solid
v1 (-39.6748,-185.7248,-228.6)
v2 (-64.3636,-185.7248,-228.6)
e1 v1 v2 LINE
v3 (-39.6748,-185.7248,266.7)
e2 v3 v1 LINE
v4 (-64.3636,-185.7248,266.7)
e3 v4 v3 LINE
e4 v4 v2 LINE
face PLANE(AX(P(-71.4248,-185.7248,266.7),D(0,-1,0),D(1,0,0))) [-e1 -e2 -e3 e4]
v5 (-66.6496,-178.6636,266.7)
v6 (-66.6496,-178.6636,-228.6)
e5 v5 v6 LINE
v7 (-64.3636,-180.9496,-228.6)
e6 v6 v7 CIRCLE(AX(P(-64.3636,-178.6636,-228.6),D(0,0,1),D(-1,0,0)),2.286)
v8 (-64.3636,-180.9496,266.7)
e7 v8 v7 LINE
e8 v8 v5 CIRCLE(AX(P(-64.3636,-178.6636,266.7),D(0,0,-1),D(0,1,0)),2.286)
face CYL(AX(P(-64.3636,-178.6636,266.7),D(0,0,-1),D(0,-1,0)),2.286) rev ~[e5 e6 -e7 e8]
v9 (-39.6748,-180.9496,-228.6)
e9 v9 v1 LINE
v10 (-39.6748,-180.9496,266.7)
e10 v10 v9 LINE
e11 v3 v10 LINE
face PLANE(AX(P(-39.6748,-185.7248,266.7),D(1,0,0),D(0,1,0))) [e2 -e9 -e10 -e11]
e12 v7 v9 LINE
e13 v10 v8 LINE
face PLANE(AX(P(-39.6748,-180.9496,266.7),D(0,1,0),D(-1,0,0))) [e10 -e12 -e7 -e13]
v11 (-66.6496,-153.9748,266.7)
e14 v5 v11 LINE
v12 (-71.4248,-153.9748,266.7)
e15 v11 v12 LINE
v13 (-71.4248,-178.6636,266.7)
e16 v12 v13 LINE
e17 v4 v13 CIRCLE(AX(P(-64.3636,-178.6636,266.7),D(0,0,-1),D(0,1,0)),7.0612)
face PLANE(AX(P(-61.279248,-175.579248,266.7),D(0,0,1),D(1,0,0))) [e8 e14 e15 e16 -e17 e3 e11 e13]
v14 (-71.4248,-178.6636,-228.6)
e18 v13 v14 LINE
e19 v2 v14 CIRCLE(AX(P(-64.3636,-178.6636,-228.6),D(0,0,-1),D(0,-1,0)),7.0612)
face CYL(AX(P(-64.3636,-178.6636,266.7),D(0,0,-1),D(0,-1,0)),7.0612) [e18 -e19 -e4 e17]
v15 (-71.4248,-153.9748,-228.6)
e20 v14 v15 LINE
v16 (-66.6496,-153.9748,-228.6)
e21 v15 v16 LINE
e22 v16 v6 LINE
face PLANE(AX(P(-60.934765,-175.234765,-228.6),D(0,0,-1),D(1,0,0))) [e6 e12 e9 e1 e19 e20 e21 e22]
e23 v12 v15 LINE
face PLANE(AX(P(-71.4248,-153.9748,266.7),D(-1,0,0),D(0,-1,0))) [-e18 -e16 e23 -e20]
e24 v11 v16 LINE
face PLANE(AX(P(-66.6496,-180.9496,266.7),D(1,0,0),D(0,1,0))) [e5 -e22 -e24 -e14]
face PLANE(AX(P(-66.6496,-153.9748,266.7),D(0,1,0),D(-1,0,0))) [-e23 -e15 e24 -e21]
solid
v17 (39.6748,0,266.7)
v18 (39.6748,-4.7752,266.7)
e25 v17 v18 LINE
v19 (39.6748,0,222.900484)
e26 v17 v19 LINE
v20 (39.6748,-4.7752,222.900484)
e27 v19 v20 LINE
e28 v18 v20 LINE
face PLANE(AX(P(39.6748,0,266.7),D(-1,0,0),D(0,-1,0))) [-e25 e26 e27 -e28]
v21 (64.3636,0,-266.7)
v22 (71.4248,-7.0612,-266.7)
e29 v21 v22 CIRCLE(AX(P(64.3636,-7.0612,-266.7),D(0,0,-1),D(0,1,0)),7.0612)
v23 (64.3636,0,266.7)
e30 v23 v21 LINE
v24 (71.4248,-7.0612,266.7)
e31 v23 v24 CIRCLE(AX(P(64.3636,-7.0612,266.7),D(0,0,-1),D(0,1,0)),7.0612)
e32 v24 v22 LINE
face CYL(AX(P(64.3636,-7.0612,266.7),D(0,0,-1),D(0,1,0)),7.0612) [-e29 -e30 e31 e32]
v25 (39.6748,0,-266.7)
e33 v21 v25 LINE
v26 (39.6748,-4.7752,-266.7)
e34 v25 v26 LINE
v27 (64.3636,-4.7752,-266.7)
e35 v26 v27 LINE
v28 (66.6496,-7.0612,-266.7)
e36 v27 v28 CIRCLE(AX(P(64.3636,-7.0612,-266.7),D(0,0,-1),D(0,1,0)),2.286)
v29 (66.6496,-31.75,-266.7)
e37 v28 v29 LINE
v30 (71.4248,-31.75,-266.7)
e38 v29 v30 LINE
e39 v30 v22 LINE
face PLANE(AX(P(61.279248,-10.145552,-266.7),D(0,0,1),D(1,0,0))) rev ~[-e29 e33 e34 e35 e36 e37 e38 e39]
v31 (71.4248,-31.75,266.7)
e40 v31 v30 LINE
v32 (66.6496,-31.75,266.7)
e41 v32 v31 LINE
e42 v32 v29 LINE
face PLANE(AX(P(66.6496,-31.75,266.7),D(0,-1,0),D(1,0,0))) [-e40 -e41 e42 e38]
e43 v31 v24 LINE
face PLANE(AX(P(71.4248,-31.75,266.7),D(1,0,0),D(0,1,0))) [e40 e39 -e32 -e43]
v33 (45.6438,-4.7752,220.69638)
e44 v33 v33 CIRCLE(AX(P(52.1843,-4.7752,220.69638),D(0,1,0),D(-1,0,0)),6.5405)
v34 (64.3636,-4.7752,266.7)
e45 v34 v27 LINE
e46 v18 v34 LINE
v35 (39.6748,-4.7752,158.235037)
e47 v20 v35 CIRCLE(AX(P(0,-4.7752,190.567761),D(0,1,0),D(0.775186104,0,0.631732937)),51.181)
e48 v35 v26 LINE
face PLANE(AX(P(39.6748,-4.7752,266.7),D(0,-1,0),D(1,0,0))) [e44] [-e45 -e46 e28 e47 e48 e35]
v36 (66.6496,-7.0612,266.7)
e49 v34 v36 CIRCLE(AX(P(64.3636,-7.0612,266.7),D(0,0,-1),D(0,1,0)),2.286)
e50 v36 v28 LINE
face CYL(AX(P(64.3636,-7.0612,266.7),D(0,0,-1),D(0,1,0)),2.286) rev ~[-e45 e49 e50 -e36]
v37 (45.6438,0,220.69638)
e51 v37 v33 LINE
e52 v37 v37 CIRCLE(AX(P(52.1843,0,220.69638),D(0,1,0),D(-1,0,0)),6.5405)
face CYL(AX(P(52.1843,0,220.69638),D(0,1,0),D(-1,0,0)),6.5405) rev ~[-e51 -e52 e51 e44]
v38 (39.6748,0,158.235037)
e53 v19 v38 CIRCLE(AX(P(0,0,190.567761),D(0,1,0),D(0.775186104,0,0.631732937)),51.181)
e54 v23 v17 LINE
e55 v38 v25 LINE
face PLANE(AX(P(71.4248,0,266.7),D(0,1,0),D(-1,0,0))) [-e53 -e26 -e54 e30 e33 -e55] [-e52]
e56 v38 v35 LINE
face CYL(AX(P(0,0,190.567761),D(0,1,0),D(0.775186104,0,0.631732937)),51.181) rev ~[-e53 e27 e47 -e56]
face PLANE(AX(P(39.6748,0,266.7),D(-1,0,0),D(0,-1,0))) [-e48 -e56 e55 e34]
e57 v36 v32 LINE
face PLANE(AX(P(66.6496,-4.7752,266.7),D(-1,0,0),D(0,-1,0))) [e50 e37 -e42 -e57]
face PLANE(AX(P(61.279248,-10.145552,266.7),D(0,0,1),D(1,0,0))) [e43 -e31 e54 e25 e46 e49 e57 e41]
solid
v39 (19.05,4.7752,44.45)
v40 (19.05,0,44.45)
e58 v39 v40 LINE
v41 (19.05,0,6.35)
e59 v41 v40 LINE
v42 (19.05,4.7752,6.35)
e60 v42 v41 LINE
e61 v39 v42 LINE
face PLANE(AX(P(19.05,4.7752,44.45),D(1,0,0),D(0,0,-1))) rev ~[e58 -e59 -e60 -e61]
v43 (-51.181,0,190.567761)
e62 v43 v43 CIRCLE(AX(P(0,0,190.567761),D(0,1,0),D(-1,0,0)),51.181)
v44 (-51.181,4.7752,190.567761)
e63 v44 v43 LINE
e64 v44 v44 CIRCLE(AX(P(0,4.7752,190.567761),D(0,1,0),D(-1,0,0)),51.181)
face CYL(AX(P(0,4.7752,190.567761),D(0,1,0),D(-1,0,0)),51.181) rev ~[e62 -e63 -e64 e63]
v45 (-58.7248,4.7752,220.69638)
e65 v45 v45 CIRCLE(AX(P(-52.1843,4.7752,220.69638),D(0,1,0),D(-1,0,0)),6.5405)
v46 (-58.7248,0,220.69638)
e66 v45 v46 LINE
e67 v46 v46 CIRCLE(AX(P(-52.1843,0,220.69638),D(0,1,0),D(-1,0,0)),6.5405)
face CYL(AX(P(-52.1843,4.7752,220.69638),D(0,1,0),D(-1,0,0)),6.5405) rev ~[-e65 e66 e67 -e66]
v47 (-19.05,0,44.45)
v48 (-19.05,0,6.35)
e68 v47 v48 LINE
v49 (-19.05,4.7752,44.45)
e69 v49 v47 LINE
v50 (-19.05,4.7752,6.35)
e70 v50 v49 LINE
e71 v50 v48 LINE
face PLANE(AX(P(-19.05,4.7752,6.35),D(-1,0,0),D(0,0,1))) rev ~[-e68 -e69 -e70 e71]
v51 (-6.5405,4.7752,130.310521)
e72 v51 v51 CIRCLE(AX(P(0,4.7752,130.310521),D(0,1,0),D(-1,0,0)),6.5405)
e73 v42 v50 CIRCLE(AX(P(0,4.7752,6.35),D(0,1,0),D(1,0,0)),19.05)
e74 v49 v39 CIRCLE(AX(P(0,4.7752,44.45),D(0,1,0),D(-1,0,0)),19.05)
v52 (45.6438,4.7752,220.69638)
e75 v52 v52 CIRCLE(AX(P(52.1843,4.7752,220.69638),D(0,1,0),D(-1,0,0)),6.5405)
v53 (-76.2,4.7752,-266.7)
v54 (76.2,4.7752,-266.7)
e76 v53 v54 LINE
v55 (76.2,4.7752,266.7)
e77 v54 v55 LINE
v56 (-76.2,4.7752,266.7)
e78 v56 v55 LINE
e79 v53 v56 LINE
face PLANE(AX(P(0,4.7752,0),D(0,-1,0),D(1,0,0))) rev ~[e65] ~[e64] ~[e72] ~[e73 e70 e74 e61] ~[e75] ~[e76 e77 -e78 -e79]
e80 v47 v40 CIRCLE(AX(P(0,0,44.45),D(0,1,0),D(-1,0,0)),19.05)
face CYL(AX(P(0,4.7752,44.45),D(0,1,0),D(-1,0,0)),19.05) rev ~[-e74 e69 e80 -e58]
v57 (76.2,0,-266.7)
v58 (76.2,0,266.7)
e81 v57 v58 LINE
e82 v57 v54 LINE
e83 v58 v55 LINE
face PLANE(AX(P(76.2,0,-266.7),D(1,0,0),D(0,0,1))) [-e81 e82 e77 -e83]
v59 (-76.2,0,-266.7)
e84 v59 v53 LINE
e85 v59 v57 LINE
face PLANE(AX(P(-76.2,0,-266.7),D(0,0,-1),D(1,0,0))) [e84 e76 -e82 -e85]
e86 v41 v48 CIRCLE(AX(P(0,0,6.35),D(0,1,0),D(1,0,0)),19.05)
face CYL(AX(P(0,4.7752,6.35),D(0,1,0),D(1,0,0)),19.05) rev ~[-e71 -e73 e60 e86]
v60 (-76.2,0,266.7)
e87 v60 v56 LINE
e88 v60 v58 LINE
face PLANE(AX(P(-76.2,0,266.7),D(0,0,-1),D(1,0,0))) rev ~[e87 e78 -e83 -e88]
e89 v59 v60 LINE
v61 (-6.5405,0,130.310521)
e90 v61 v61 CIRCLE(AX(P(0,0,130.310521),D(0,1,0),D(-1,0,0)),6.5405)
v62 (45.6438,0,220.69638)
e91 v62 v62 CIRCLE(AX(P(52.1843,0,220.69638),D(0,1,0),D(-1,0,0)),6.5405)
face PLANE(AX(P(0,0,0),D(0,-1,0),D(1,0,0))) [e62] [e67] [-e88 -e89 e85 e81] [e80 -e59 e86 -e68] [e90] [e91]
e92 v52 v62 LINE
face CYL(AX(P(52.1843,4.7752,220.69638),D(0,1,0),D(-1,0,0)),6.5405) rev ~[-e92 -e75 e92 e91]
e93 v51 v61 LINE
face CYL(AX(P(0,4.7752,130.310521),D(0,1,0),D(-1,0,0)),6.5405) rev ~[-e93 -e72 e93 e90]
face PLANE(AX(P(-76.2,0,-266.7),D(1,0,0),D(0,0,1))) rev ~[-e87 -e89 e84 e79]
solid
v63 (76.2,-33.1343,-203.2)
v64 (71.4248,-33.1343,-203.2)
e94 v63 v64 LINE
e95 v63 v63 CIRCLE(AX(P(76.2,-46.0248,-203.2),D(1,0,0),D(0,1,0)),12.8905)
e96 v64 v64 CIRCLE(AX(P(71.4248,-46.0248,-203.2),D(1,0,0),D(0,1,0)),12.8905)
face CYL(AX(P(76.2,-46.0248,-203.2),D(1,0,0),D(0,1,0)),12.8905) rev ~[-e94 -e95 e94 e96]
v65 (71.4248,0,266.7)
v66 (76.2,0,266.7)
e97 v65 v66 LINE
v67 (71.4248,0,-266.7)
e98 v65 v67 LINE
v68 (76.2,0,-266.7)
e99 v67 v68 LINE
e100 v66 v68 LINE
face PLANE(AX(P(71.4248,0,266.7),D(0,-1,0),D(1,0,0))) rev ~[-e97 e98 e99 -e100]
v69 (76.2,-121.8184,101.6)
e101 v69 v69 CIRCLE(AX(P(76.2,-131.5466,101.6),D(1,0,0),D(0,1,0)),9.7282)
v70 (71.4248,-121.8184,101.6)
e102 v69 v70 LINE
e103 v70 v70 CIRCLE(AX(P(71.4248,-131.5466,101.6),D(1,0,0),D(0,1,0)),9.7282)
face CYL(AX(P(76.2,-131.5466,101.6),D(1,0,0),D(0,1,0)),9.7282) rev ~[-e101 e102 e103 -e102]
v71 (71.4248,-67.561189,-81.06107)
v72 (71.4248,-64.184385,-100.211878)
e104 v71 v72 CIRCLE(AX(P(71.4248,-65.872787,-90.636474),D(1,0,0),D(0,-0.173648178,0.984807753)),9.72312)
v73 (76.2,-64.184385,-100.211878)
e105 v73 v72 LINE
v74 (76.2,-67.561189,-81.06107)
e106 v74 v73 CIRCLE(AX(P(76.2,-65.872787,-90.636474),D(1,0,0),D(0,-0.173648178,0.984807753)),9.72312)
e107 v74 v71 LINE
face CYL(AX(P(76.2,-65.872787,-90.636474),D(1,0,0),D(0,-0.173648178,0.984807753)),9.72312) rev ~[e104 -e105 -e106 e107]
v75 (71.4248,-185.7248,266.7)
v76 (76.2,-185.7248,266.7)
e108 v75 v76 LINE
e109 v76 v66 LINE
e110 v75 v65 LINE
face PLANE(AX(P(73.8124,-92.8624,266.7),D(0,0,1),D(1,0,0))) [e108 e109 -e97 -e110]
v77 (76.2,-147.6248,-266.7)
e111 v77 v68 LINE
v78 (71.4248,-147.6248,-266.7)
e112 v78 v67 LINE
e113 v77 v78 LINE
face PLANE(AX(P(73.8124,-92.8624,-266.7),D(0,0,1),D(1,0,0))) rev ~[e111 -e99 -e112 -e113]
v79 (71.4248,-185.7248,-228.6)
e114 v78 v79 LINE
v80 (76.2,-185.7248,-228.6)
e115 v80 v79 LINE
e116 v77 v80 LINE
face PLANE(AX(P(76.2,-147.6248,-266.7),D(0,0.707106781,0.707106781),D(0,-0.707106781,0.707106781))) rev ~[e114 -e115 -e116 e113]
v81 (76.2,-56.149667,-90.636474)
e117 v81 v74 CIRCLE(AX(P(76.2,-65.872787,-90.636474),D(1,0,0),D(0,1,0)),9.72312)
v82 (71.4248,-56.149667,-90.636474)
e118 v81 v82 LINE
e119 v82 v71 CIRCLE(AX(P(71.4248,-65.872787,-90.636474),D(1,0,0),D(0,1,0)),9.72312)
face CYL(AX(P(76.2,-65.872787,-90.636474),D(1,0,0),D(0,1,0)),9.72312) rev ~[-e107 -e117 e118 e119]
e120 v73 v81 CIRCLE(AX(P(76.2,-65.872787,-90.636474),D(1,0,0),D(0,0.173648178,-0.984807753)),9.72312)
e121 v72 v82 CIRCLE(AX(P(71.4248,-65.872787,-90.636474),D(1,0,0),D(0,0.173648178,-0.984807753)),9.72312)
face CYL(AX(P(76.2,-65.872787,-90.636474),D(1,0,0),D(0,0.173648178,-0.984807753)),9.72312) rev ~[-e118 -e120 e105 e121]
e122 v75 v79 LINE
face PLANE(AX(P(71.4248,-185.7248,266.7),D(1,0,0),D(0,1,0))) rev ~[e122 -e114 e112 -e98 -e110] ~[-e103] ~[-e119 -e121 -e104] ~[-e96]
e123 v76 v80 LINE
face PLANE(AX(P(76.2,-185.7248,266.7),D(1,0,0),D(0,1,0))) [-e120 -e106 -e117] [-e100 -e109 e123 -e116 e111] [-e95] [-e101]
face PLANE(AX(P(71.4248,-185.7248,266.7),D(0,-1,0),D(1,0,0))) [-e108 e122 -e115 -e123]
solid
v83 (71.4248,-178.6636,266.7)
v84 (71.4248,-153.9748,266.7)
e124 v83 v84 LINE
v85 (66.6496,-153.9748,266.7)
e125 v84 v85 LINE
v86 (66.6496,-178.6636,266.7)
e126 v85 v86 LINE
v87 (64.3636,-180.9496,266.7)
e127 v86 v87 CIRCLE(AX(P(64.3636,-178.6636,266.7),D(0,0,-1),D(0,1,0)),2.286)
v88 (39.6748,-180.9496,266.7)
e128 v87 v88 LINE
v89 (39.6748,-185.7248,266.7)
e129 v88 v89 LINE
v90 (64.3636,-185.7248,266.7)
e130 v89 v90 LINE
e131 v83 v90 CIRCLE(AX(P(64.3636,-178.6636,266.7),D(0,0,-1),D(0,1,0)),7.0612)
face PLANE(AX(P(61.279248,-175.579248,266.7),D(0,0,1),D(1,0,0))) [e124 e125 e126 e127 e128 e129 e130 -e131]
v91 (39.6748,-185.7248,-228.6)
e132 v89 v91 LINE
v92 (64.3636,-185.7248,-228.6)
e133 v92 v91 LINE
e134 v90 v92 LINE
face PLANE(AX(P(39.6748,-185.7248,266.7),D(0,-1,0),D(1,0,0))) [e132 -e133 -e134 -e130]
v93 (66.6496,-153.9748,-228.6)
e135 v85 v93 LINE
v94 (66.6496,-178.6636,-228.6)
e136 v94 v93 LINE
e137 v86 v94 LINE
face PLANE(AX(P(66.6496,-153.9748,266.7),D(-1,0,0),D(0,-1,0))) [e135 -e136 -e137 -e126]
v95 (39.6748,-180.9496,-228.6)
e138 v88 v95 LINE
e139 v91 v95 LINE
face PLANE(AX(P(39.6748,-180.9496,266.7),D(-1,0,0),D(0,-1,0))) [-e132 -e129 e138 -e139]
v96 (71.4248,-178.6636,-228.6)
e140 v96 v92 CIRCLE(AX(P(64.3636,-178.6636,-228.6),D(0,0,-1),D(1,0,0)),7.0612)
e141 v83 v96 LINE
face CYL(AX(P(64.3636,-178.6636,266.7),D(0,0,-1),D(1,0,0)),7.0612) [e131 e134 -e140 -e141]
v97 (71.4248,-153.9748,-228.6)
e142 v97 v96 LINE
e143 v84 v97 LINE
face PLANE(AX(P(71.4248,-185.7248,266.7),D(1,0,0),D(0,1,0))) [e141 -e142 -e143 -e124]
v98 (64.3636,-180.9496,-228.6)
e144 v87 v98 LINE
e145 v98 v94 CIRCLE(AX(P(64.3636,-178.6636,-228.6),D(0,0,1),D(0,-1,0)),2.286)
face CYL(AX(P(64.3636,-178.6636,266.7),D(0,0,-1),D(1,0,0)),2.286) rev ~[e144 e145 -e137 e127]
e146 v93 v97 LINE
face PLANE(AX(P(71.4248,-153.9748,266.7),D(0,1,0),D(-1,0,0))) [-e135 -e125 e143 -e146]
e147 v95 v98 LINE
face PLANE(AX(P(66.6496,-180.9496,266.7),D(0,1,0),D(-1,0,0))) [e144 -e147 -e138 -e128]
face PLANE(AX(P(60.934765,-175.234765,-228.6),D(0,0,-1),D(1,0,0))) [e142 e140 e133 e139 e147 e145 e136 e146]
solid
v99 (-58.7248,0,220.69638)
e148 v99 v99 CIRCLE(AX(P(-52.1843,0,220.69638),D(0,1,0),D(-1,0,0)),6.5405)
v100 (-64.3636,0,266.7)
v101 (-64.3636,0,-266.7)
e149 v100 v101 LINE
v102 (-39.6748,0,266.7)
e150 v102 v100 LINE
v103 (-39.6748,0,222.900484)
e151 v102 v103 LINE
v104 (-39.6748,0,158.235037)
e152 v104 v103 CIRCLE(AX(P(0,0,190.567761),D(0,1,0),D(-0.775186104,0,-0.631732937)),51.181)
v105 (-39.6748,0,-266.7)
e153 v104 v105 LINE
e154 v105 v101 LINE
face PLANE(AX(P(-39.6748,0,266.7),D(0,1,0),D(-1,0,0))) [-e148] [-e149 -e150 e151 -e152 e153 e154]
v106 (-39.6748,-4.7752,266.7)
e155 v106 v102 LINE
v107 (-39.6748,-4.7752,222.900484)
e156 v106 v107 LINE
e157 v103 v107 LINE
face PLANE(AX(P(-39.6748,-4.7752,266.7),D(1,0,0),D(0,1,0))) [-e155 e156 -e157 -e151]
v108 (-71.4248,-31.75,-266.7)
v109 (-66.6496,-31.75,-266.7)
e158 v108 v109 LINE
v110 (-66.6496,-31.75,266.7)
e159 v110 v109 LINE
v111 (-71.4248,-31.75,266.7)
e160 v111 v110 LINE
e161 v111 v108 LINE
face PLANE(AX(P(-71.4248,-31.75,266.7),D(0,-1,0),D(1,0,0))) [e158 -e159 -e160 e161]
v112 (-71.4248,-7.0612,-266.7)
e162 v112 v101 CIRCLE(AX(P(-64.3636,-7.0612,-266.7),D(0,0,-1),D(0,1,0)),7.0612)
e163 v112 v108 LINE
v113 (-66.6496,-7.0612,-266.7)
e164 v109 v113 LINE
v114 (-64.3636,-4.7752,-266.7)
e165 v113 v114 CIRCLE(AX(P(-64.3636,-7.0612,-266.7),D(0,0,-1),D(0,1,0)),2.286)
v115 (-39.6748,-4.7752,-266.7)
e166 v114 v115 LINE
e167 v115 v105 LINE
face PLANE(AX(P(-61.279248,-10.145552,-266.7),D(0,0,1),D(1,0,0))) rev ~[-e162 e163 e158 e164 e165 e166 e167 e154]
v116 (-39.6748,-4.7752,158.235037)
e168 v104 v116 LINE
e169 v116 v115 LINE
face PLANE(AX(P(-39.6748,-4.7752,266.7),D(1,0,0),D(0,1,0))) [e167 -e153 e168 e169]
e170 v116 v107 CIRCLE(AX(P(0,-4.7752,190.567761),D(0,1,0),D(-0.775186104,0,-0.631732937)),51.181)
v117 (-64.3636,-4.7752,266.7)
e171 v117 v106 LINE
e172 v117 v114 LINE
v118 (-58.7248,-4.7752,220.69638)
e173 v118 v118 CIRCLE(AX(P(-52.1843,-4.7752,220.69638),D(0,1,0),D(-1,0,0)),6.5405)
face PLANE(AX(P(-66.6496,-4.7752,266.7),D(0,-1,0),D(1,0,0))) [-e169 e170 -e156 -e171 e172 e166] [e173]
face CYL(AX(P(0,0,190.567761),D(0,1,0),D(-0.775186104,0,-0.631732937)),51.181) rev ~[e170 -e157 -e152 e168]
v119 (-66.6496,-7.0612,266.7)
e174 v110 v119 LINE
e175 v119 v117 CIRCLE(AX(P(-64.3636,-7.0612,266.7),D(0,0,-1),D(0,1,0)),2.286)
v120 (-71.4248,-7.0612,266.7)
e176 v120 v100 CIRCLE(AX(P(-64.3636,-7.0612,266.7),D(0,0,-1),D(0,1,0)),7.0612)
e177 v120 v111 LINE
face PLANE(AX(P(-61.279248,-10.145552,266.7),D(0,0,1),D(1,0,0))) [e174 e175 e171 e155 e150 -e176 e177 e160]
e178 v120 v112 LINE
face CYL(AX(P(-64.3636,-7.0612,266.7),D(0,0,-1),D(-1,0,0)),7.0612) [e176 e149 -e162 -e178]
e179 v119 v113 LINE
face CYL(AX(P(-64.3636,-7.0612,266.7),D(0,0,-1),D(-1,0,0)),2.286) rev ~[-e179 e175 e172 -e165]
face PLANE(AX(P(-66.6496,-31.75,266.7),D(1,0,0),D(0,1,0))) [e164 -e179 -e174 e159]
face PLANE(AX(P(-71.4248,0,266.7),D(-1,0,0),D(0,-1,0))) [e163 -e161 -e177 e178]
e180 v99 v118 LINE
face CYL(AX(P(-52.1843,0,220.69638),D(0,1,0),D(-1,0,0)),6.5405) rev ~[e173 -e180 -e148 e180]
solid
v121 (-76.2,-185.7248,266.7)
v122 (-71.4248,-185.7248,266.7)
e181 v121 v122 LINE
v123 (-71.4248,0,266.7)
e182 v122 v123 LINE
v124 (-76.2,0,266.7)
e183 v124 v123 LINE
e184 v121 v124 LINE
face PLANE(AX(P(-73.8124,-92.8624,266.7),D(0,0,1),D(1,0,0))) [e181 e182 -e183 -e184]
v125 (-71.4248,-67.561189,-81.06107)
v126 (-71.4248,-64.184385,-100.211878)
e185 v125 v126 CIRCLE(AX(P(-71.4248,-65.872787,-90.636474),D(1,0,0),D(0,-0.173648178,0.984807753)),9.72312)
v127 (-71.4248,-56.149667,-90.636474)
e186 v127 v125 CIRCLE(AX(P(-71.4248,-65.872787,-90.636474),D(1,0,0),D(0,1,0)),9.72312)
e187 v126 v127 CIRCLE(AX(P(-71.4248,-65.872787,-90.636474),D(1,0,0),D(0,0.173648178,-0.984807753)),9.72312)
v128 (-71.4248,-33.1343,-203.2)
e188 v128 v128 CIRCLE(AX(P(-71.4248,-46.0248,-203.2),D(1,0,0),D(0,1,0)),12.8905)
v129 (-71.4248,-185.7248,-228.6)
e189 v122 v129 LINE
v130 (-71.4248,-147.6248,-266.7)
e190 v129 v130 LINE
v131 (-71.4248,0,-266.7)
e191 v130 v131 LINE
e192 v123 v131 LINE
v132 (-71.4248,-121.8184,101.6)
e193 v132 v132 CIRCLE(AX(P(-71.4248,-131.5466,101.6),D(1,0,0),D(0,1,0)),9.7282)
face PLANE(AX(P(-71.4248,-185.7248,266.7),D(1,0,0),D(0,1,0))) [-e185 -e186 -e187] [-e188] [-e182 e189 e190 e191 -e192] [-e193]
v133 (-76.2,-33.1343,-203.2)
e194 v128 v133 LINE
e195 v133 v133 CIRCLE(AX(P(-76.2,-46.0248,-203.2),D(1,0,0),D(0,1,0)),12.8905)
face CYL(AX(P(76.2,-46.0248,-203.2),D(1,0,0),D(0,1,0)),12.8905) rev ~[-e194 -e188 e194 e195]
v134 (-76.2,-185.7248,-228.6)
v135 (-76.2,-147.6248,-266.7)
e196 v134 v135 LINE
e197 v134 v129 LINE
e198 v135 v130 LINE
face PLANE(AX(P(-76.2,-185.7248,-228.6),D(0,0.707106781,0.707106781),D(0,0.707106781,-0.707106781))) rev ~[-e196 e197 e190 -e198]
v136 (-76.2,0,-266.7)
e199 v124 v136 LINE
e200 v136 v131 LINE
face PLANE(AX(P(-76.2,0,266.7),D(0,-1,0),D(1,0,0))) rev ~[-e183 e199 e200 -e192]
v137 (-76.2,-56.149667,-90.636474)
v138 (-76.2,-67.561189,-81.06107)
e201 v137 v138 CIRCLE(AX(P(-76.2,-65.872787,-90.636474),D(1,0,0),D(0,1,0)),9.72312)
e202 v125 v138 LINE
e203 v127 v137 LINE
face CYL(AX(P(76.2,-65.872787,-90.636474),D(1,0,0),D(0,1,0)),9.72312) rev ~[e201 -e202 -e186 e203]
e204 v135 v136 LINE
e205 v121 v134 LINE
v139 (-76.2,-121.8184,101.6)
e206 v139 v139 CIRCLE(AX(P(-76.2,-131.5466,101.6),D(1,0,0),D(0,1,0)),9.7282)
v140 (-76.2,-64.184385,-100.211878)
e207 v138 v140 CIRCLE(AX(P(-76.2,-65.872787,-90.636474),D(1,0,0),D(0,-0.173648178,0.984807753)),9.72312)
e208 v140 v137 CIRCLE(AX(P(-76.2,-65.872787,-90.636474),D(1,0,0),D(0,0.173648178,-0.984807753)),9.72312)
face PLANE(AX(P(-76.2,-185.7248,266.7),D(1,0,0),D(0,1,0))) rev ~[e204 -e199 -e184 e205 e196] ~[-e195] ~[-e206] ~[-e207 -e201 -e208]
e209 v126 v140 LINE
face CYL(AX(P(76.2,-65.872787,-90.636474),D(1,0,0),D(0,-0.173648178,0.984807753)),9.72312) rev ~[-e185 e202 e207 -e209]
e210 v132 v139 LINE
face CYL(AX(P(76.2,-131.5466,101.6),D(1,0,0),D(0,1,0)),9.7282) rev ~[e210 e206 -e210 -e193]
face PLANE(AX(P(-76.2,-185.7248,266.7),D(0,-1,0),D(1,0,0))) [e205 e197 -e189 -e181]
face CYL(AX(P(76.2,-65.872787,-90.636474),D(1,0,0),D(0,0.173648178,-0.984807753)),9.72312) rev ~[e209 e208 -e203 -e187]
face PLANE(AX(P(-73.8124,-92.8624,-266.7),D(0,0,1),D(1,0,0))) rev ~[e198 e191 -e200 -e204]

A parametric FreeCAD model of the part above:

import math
import FreeCAD as App
import Part
import Sketcher
Q = App.Units.Quantity


def edges_at(feature, points):
    """Names of the edges that pass closest to the given points."""
    edges = feature.Shape.Edges
    near = lambda p: min(range(len(edges)), key=lambda i: edges[i].distToShape(Part.Vertex(*p))[0])
    return sorted({f"Edge{near(p) + 1}" for p in points})


def add_polygon(sketch, points):
    """Adds a closed chain of lines whose ends are joined by coincident constraints."""
    first, n = sketch.GeometryCount, len(points)
    for a, b in zip(points, points[1:] + points[:1]):
        sketch.addGeometry(Part.LineSegment(App.Vector(*a, 0), App.Vector(*b, 0)), False)
    for i in range(n):
        sketch.addConstraint(Sketcher.Constraint("Coincident", first + i, 2, first + (i + 1) % n, 1))

doc = App.newDocument("Part")
body = doc.addObject("PartDesign::Body", "Body")

# Sketch on XZ plane
sketch1 = body.newObject("Sketcher::SketchObject", "Sketch")
sketch1.AttachmentSupport = (doc.getObject("XZ_Plane"), [""])
sketch1.MapMode = "FlatFace"
add_polygon(sketch1, [(-76.2, 266.7), (-76.2, -266.7), (76.2, -266.7), (76.2, 266.7)])  # lines 0-3
sketch1.addConstraint(Sketcher.Constraint("Vertical", 0))
sketch1.addConstraint(Sketcher.Constraint("Horizontal", 1))
sketch1.addConstraint(Sketcher.Constraint("Vertical", 2))
sketch1.addConstraint(Sketcher.Constraint("Horizontal", 3))
sketch1.addConstraint(Sketcher.Constraint("Symmetric", 0, 2, 2, 2, -1, 1))
sketch1.addConstraint(Sketcher.Constraint("DistanceX", 1, 1, 1, 2, Q("6 in")))
sketch1.addConstraint(Sketcher.Constraint("DistanceY", 0, 2, 0, 1, Q("21 in")))
pad1 = body.newObject("PartDesign::Pad", "Pad")
pad1.Profile = sketch1
pad1.Length = Q("0.188 in")
pad1.Reversed = True

# Sketch on XZ plane
sketch2 = body.newObject("Sketcher::SketchObject", "Sketch001")
sketch2.AttachmentSupport = (doc.getObject("XZ_Plane"), [""])
sketch2.MapMode = "FlatFace"
sketch2.AttachmentOffset = App.Placement(App.Vector(0, 0, -0.188 * 25.4), App.Rotation())
sketch2.addGeometry(Part.Circle(App.Vector(0, 190.567761, 0), App.Vector(0, 0, 1), 51.181), False)
sketch2.addGeometry(Part.Circle(App.Vector(0, 130.310521, 0), App.Vector(0, 0, 1), 6.5405), False)
sketch2.addGeometry(Part.Circle(App.Vector(-52.1843, 220.69638, 0), App.Vector(0, 0, 1), 6.5405), False)
sketch2.addGeometry(Part.Circle(App.Vector(52.1843, 220.69638, 0), App.Vector(0, 0, 1), 6.5405), False)
sketch2.addConstraint(Sketcher.Constraint("Equal", 1, 2))
sketch2.addConstraint(Sketcher.Constraint("Equal", 2, 3))
sketch2.addConstraint(Sketcher.Constraint("Symmetric", 2, 3, 3, 3, -2))
sketch2.addConstraint(Sketcher.Constraint("PointOnObject", 0, 3, -2))
sketch2.addConstraint(Sketcher.Constraint("PointOnObject", 1, 3, -2))
sketch2.addConstraint(Sketcher.Constraint("Diameter", 0, Q("4.03 in")))
sketch2.addConstraint(Sketcher.Constraint("Diameter", 1, Q("0.515 in")))
sketch2.addConstraint(Sketcher.Constraint("DistanceX", 2, 3, 3, 3, Q("4.109 in")))
sketch2.addConstraint(Sketcher.Constraint("DistanceY", -1, 1, 0, 3, 190.567761))
sketch2.addConstraint(Sketcher.Constraint("DistanceY", -1, 1, 1, 3, 130.310521))
sketch2.addConstraint(Sketcher.Constraint("DistanceY", -1, 1, 2, 3, 220.69638))
pocket1 = body.newObject("PartDesign::Pocket", "Pocket")
pocket1.Profile = sketch2
pocket1.Length = Q("1 in")
pocket1.Reversed = True

# Sketch on XZ plane
sketch3 = body.newObject("Sketcher::SketchObject", "Sketch002")
sketch3.AttachmentSupport = (doc.getObject("XZ_Plane"), [""])
sketch3.MapMode = "FlatFace"
sketch3.AttachmentOffset = App.Placement(App.Vector(0, 0, -0.188 * 25.4), App.Rotation())
sketch3.addGeometry(Part.LineSegment(App.Vector(-19.05, 6.35, 0), App.Vector(-19.05, 44.45, 0)), False)
sketch3.addGeometry(Part.ArcOfCircle(Part.Circle(App.Vector(0, 44.45, 0), App.Vector(0, 0, 1), 19.05), math.radians(0), math.radians(180)), False)
sketch3.addGeometry(Part.LineSegment(App.Vector(19.05, 44.45, 0), App.Vector(19.05, 6.35, 0)), False)
sketch3.addGeometry(Part.ArcOfCircle(Part.Circle(App.Vector(0, 6.35, 0), App.Vector(0, 0, 1), 19.05), math.radians(180), math.radians(360)), False)
sketch3.addConstraint(Sketcher.Constraint("Tangent", 0, 2, 1, 2))
sketch3.addConstraint(Sketcher.Constraint("Tangent", 1, 1, 2, 1))
sketch3.addConstraint(Sketcher.Constraint("Tangent", 2, 2, 3, 2))
sketch3.addConstraint(Sketcher.Constraint("Tangent", 3, 1, 0, 1))
sketch3.addConstraint(Sketcher.Constraint("Vertical", 0))
sketch3.addConstraint(Sketcher.Constraint("Vertical", 2))
sketch3.addConstraint(Sketcher.Constraint("PointOnObject", 1, 3, -2))
sketch3.addConstraint(Sketcher.Constraint("Radius", 1, Q("0.75 in")))
sketch3.addConstraint(Sketcher.Constraint("DistanceY", 0, 1, 0, 2, Q("1.5 in")))
sketch3.addConstraint(Sketcher.Constraint("DistanceY", -1, 1, 1, 3, Q("1.75 in")))
pocket2 = body.newObject("PartDesign::Pocket", "Pocket001")
pocket2.Profile = sketch3
pocket2.Length = Q("0.25 in")
pocket2.Reversed = True
body2 = doc.addObject("PartDesign::Body", "Body001")
body2.AllowCompound = True

# Sketch on XY plane
sketch4 = body2.newObject("Sketcher::SketchObject", "Sketch003")
sketch4.AttachmentSupport = (doc.getObject("XY_Plane001"), [""])
sketch4.MapMode = "FlatFace"
sketch4.AttachmentOffset = App.Placement(App.Vector(0, 0, 10.5 * 25.4), App.Rotation())
add_polygon(sketch4, [(71.4248, 0), (71.4248, -185.7248), (76.2, -185.7248), (76.2, 0)])  # lines 0-3
add_polygon(sketch4, [(-76.2, 0), (-76.2, -185.7248), (-71.4248, -185.7248), (-71.4248, 0)])  # lines 4-7
sketch4.addConstraint(Sketcher.Constraint("Vertical", 0))
sketch4.addConstraint(Sketcher.Constraint("Horizontal", 1))
sketch4.addConstraint(Sketcher.Constraint("Vertical", 2))
sketch4.addConstraint(Sketcher.Constraint("Horizontal", 3))
sketch4.addConstraint(Sketcher.Constraint("Vertical", 4))
sketch4.addConstraint(Sketcher.Constraint("Horizontal", 5))
sketch4.addConstraint(Sketcher.Constraint("Vertical", 6))
sketch4.addConstraint(Sketcher.Constraint("Horizontal", 7))
sketch4.addConstraint(Sketcher.Constraint("Symmetric", 3, 2, 6, 2, -1, 1))
sketch4.addConstraint(Sketcher.Constraint("Symmetric", 1, 2, 4, 2, -2))
sketch4.addConstraint(Sketcher.Constraint("PointOnObject", 2, 2, -1))
sketch4.addConstraint(Sketcher.Constraint("DistanceX", -1, 1, 1, 2, Q("3 in")))
sketch4.addConstraint(Sketcher.Constraint("DistanceX", 1, 1, 1, 2, Q("0.188 in")))
sketch4.addConstraint(Sketcher.Constraint("DistanceY", 0, 2, 0, 1, Q("7.312 in")))
pad2 = body2.newObject("PartDesign::Pad", "Pad001")
pad2.Profile = sketch4
pad2.Length = Q("21 in")
pad2.Reversed = True

# Sketch on YZ plane
sketch5 = body2.newObject("Sketcher::SketchObject", "Sketch004")
sketch5.AttachmentSupport = (doc.getObject("YZ_Plane001"), [""])
sketch5.MapMode = "FlatFace"
sketch5.AttachmentOffset = App.Placement(App.Vector(0, 0, 3 * 25.4), App.Rotation())
sketch5.addGeometry(Part.Circle(App.Vector(-46.0248, -203.2, 0), App.Vector(0, 0, 1), 12.8905), False)
sketch5.addConstraint(Sketcher.Constraint("Diameter", 0, Q("1.015 in")))
sketch5.addConstraint(Sketcher.Constraint("DistanceY", 0, 3, -1, 1, Q("8 in")))
sketch5.addConstraint(Sketcher.Constraint("DistanceX", 0, 3, -1, 1, Q("1.812 in")))
pocket3 = body2.newObject("PartDesign::Pocket", "Pocket002")
pocket3.Profile = sketch5
pocket3.Type = "ThroughAll"

# Sketch on YZ plane
sketch6 = body2.newObject("Sketcher::SketchObject", "Sketch005")
sketch6.AttachmentSupport = (doc.getObject("YZ_Plane001"), [""])
sketch6.MapMode = "FlatFace"
sketch6.AttachmentOffset = App.Placement(App.Vector(0, 0, 3 * 25.4), App.Rotation())
sketch6.addGeometry(Part.ArcOfCircle(Part.Circle(App.Vector(-46.0248, -203.2, 0), App.Vector(0, 0, 1), 12.8905), math.radians(100), math.radians(360)), False)
sketch6.addGeometry(Part.ArcOfCircle(Part.Circle(App.Vector(-46.0248, -203.2, 0), App.Vector(0, 0, 1), 12.8905), math.radians(0), math.radians(100)), False)
sketch6.addGeometry(Part.ArcOfCircle(Part.Circle(App.Vector(-65.872787, -90.636474, 0), App.Vector(0, 0, 1), 9.72312), math.radians(100), math.radians(280)), False)
sketch6.addGeometry(Part.ArcOfCircle(Part.Circle(App.Vector(-65.872787, -90.636474, 0), App.Vector(0, 0, 1), 9.72312), math.radians(-80), math.radians(0)), False)
sketch6.addGeometry(Part.ArcOfCircle(Part.Circle(App.Vector(-65.872787, -90.636474, 0), App.Vector(0, 0, 1), 9.72312), math.radians(0), math.radians(100)), False)
sketch6.addGeometry(Part.Circle(App.Vector(-131.5466, 101.6, 0), App.Vector(0, 0, 1), 9.7282), False)
sketch6.addConstraint(Sketcher.Constraint("Tangent", 0, 1, 1, 2))
sketch6.addConstraint(Sketcher.Constraint("Coincident", 1, 1, 0, 2))
sketch6.addConstraint(Sketcher.Constraint("Tangent", 2, 2, 3, 1))
sketch6.addConstraint(Sketcher.Constraint("Tangent", 3, 2, 4, 1))
sketch6.addConstraint(Sketcher.Constraint("Tangent", 4, 2, 2, 1))
sketch6.addConstraint(Sketcher.Constraint("Horizontal", 0, 3, 1, 1))
sketch6.addConstraint(Sketcher.Constraint("Horizontal", 4, 3, 3, 2))
sketch6.addConstraint(Sketcher.Constraint("Diameter", 5, Q("0.766 in")))
sketch6.addConstraint(Sketcher.Constraint("DistanceY", 0, 3, -1, 1, Q("8 in")))
sketch6.addConstraint(Sketcher.Constraint("DistanceY", -1, 1, 5, 3, Q("4 in")))
sketch6.addConstraint(Sketcher.Constraint("Radius", 0, Q("0.5075 in")))
sketch6.addConstraint(Sketcher.Constraint("Radius", 2, Q("0.3828 in")))
sketch6.addConstraint(Sketcher.Constraint("DistanceX", 0, 3, -1, 1, Q("1.812 in")))
sketch6.addConstraint(Sketcher.Constraint("DistanceX", 5, 3, -1, 1, Q("5.179 in")))
sketch6.addConstraint(Sketcher.Constraint("DistanceX", 0, 1, -1, 1, 48.263212))
sketch6.addConstraint(Sketcher.Constraint("DistanceX", 4, 2, -1, 1, 67.561189))
sketch6.addConstraint(Sketcher.Constraint("DistanceY", 4, 2, -1, 1, 81.06107))
sketch6.addConstraint(Sketcher.Constraint("DistanceY", 0, 1, 2, 3, 99.868862))
sketch6.addConstraint(Sketcher.Constraint("DistanceX", 2, 2, -1, 1, 64.184385))
pocket4 = body2.newObject("PartDesign::Pocket", "Pocket003")
pocket4.Profile = sketch6
pocket4.Type = "ThroughAll"

# Sketch on YZ plane
sketch7 = body2.newObject("Sketcher::SketchObject", "Sketch006")
sketch7.AttachmentSupport = (doc.getObject("YZ_Plane001"), [""])
sketch7.MapMode = "FlatFace"
sketch7.AttachmentOffset = App.Placement(App.Vector(0, 0, 3 * 25.4), App.Rotation())
add_polygon(sketch7, [(-185.7248, -228.6), (-185.7248, -266.7), (-147.6248, -266.7)])  # lines 0-2
sketch7.addConstraint(Sketcher.Constraint("Vertical", 0))
sketch7.addConstraint(Sketcher.Constraint("Horizontal", 1))
sketch7.addConstraint(Sketcher.Constraint("Equal", 1, 0))
sketch7.addConstraint(Sketcher.Constraint("DistanceX", 1, 1, 1, 2, Q("1.5 in")))
sketch7.addConstraint(Sketcher.Constraint("DistanceY", 2, 2, -1, 1, Q("9 in")))
sketch7.addConstraint(Sketcher.Constraint("DistanceX", 0, 2, -1, 1, Q("7.312 in")))
pocket5 = body2.newObject("PartDesign::Pocket", "Pocket004")
pocket5.Profile = sketch7
pocket5.Length = Q("0.188 in")

# Sketch on YZ plane
sketch8 = body2.newObject("Sketcher::SketchObject", "Sketch007")
sketch8.AttachmentSupport = (doc.getObject("YZ_Plane001"), [""])
sketch8.MapMode = "FlatFace"
sketch8.AttachmentOffset = App.Placement(App.Vector(0, 0, -3 * 25.4), App.Rotation())
add_polygon(sketch8, [(-147.6248, -266.7), (-185.7248, -266.7), (-185.7248, -228.6)])  # lines 0-2
sketch8.addConstraint(Sketcher.Constraint("Horizontal", 0))
sketch8.addConstraint(Sketcher.Constraint("Vertical", 1))
sketch8.addConstraint(Sketcher.Constraint("Equal", 0, 1))
sketch8.addConstraint(Sketcher.Constraint("DistanceX", 0, 2, 0, 1, Q("1.5 in")))
sketch8.addConstraint(Sketcher.Constraint("DistanceY", 1, 2, -1, 1, Q("9 in")))
sketch8.addConstraint(Sketcher.Constraint("DistanceX", 0, 2, -1, 1, Q("7.312 in")))
pocket6 = body2.newObject("PartDesign::Pocket", "Pocket005")
pocket6.Profile = sketch8
pocket6.Type = "ThroughAll"
pocket6.Reversed = True
body3 = doc.addObject("PartDesign::Body", "Body002")
body3.AllowCompound = True

# Sketch on XY plane
sketch9 = body3.newObject("Sketcher::SketchObject", "Sketch008")
sketch9.AttachmentSupport = (doc.getObject("XY_Plane002"), [""])
sketch9.MapMode = "FlatFace"
sketch9.AttachmentOffset = App.Placement(App.Vector(0, 0, 10.5 * 25.4), App.Rotation())
add_polygon(sketch9, [(-39.6748, 0), (-71.4248, 0), (-71.4248, -31.75), (-66.6496, -31.75), (-66.6496, -4.7752), (-39.6748, -4.7752)])  # lines 0-5
add_polygon(sketch9, [(71.4248, -31.75), (71.4248, 0), (39.6748, 0), (39.6748, -4.7752), (66.6496, -4.7752), (66.6496, -31.75)])  # lines 6-11
add_polygon(sketch9, [(-71.4248, -153.9748), (-71.4248, -185.7248), (-39.6748, -185.7248), (-39.6748, -180.9496), (-66.6496, -180.9496), (-66.6496, -153.9748)])  # lines 12-17
add_polygon(sketch9, [(66.6496, -153.9748), (66.6496, -180.9496), (39.6748, -180.9496), (39.6748, -185.7248), (71.4248, -185.7248), (71.4248, -153.9748)])  # lines 18-23
sketch9.addConstraint(Sketcher.Constraint("Horizontal", 0))
sketch9.addConstraint(Sketcher.Constraint("Vertical", 1))
sketch9.addConstraint(Sketcher.Constraint("Horizontal", 2))
sketch9.addConstraint(Sketcher.Constraint("Vertical", 3))
sketch9.addConstraint(Sketcher.Constraint("Horizontal", 4))
sketch9.addConstraint(Sketcher.Constraint("Vertical", 5))
sketch9.addConstraint(Sketcher.Constraint("Vertical", 6))
sketch9.addConstraint(Sketcher.Constraint("Horizontal", 7))
sketch9.addConstraint(Sketcher.Constraint("Vertical", 8))
sketch9.addConstraint(Sketcher.Constraint("Horizontal", 9))
sketch9.addConstraint(Sketcher.Constraint("Vertical", 10))
sketch9.addConstraint(Sketcher.Constraint("Horizontal", 11))
sketch9.addConstraint(Sketcher.Constraint("Vertical", 12))
sketch9.addConstraint(Sketcher.Constraint("Horizontal", 13))
sketch9.addConstraint(Sketcher.Constraint("Vertical", 14))
sketch9.addConstraint(Sketcher.Constraint("Horizontal", 15))
sketch9.addConstraint(Sketcher.Constraint("Vertical", 16))
sketch9.addConstraint(Sketcher.Constraint("Horizontal", 17))
sketch9.addConstraint(Sketcher.Constraint("Vertical", 18))
sketch9.addConstraint(Sketcher.Constraint("Horizontal", 19))
sketch9.addConstraint(Sketcher.Constraint("Vertical", 20))
sketch9.addConstraint(Sketcher.Constraint("Horizontal", 21))
sketch9.addConstraint(Sketcher.Constraint("Vertical", 22))
sketch9.addConstraint(Sketcher.Constraint("Horizontal", 23))
sketch9.addConstraint(Sketcher.Constraint("Symmetric", 0, 2, 6, 2, -1, 1))
sketch9.addConstraint(Sketcher.Constraint("Symmetric", 5, 2, 7, 2, -2))
sketch9.addConstraint(Sketcher.Constraint("Symmetric", 3, 2, 9, 2, -2))
sketch9.addConstraint(Sketcher.Constraint("Symmetric", 15, 2, 18, 2, -2))
sketch9.addConstraint(Sketcher.Constraint("Symmetric", 13, 2, 20, 2, -2))
sketch9.addConstraint(Sketcher.Constraint("Symmetric", 17, 2, 22, 2, -2))
sketch9.addConstraint(Sketcher.Constraint("Horizontal", 2, 2, 10, 2))
sketch9.addConstraint(Sketcher.Constraint("Vertical", 1, 2, 12, 2))
sketch9.addConstraint(Sketcher.Constraint("Vertical", 5, 2, 13, 2))
sketch9.addConstraint(Sketcher.Constraint("Vertical", 3, 2, 15, 2))
sketch9.addConstraint(Sketcher.Constraint("Equal", 21, 1))
sketch9.addConstraint(Sketcher.Constraint("Equal", 19, 3))
sketch9.addConstraint(Sketcher.Constraint("Equal", 6, 12))
sketch9.addConstraint(Sketcher.Constraint("Equal", 8, 14))
sketch9.addConstraint(Sketcher.Constraint("DistanceX", 0, 2, 0, 1, Q("1.25 in")))
sketch9.addConstraint(Sketcher.Constraint("DistanceX", 2, 1, 2, 2, Q("0.188 in")))
sketch9.addConstraint(Sketcher.Constraint("DistanceX", 0, 2, -1, 1, Q("2.812 in")))
sketch9.addConstraint(Sketcher.Constraint("DistanceY", 12, 2, -1, 1, Q("7.312 in")))
pad3 = body3.newObject("PartDesign::Pad", "Pad002")
pad3.Profile = sketch9
pad3.Length = Q("21 in")
pad3.Reversed = True
doc.recompute()

fillet = body3.newObject("PartDesign::Fillet", "Fillet")
fillet.Base = (pad3, edges_at(pad3, [
    (-66.65, -4.775, 0),
    (66.65, -4.775, 0),
    (-66.65, -180.95, 0),
    (66.65, -180.95, 0),
]))
fillet.Radius = Q("0.09 in")
doc.recompute()

fillet2 = body3.newObject("PartDesign::Fillet", "Fillet001")
fillet2.Base = (fillet, edges_at(fillet, [
    (71.425, 0, 0),
    (71.425, -185.725, 0),
    (-71.425, -185.725, 0),
    (-71.425, 0, 0),
]))
fillet2.Radius = Q("0.278 in")

# Sketch on XZ plane
sketch10 = body3.newObject("Sketcher::SketchObject", "Sketch009")
sketch10.AttachmentSupport = (doc.getObject("XZ_Plane002"), [""])
sketch10.MapMode = "FlatFace"
sketch10.addGeometry(Part.Circle(App.Vector(52.1843, 220.69638, 0), App.Vector(0, 0, 1), 6.5405), False)
sketch10.addGeometry(Part.ArcOfCircle(Part.Circle(App.Vector(0, 190.567761, 0), App.Vector(0, 0, 1), 51.181), math.radians(-39.178092), math.radians(39.178092)), False)
sketch10.addGeometry(Part.LineSegment(App.Vector(39.6748, 158.235037, 0), App.Vector(39.6748, 222.900484, 0)), False)
sketch10.addGeometry(Part.LineSegment(App.Vector(-39.6748, 222.900484, 0), App.Vector(-39.6748, 158.235037, 0)), False)
sketch10.addGeometry(Part.ArcOfCircle(Part.Circle(App.Vector(0, 190.567761, 0), App.Vector(0, 0, 1), 51.181), math.radians(140.821908), math.radians(219.178092)), False)
sketch10.addGeometry(Part.Circle(App.Vector(-52.1843, 220.69638, 0), App.Vector(0, 0, 1), 6.5405), False)
sketch10.addConstraint(Sketcher.Constraint("Coincident", 1, 1, 2, 1))
sketch10.addConstraint(Sketcher.Constraint("Coincident", 2, 2, 1, 2))
sketch10.addConstraint(Sketcher.Constraint("Coincident", 3, 1, 4, 1))
sketch10.addConstraint(Sketcher.Constraint("Coincident", 4, 2, 3, 2))
sketch10.addConstraint(Sketcher.Constraint("Vertical", 2))
sketch10.addConstraint(Sketcher.Constraint("Vertical", 3))
sketch10.addConstraint(Sketcher.Constraint("Coincident", 4, 3, 1, 3))
sketch10.addConstraint(Sketcher.Constraint("Equal", 1, 4))
sketch10.addConstraint(Sketcher.Constraint("Equal", 0, 5))
sketch10.addConstraint(Sketcher.Constraint("Symmetric", 0, 3, 5, 3, -2))
sketch10.addConstraint(Sketcher.Constraint("Symmetric", 2, 2, 3, 1, -2))
sketch10.addConstraint(Sketcher.Constraint("Diameter", 0, Q("0.515 in")))
sketch10.addConstraint(Sketcher.Constraint("Radius", 1, Q("2.015 in")))
sketch10.addConstraint(Sketcher.Constraint("DistanceX", -1, 1, 1, 1, Q("1.562 in")))
sketch10.addConstraint(Sketcher.Constraint("DistanceX", 5, 3, 0, 3, Q("4.109 in")))
sketch10.addConstraint(Sketcher.Constraint("DistanceY", -1, 1, 0, 3, 220.69638))
sketch10.addConstraint(Sketcher.Constraint("DistanceY", -1, 1, 1, 3, 190.567761))
pocket7 = body3.newObject("PartDesign::Pocket", "Pocket006")
pocket7.Profile = sketch10
pocket7.Length = Q("0.25 in")
pocket7.Reversed = True

# Sketch on XY plane
sketch11 = body3.newObject("Sketcher::SketchObject", "Sketch010")
sketch11.AttachmentSupport = (doc.getObject("XY_Plane002"), [""])
sketch11.MapMode = "FlatFace"
sketch11.AttachmentOffset = App.Placement(App.Vector(0, 0, -10.5 * 25.4), App.Rotation())
sketch11.addGeometry(Part.LineSegment(App.Vector(-39.6748, -180.9496, 0), App.Vector(-39.6748, -185.7248, 0)), False)
sketch11.addGeometry(Part.LineSegment(App.Vector(-39.6748, -185.7248, 0), App.Vector(-64.3636, -185.7248, 0)), False)
sketch11.addGeometry(Part.ArcOfCircle(Part.Circle(App.Vector(-64.3636, -178.6636, 0), App.Vector(0, 0, 1), 7.0612), math.radians(180), math.radians(270)), False)
sketch11.addGeometry(Part.LineSegment(App.Vector(-71.4248, -178.6636, 0), App.Vector(-71.4248, -153.9748, 0)), False)
sketch11.addGeometry(Part.LineSegment(App.Vector(-71.4248, -153.9748, 0), App.Vector(-66.6496, -153.9748, 0)), False)
sketch11.addGeometry(Part.LineSegment(App.Vector(-66.6496, -153.9748, 0), App.Vector(-66.6496, -178.6636, 0)), False)
sketch11.addGeometry(Part.ArcOfCircle(Part.Circle(App.Vector(-64.3636, -178.6636, 0), App.Vector(0, 0, 1), 2.286), math.radians(180), math.radians(270)), False)
sketch11.addGeometry(Part.LineSegment(App.Vector(-64.3636, -180.9496, 0), App.Vector(-39.6748, -180.9496, 0)), False)
sketch11.addGeometry(Part.LineSegment(App.Vector(66.6496, -153.9748, 0), App.Vector(71.4248, -153.9748, 0)), False)
sketch11.addGeometry(Part.LineSegment(App.Vector(71.4248, -153.9748, 0), App.Vector(71.4248, -178.6636, 0)), False)
sketch11.addGeometry(Part.ArcOfCircle(Part.Circle(App.Vector(64.3636, -178.6636, 0), App.Vector(0, 0, 1), 7.0612), math.radians(-90), math.radians(0)), False)
sketch11.addGeometry(Part.LineSegment(App.Vector(64.3636, -185.7248, 0), App.Vector(39.6748, -185.7248, 0)), False)
sketch11.addGeometry(Part.LineSegment(App.Vector(39.6748, -185.7248, 0), App.Vector(39.6748, -180.9496, 0)), False)
sketch11.addGeometry(Part.LineSegment(App.Vector(39.6748, -180.9496, 0), App.Vector(64.3636, -180.9496, 0)), False)
sketch11.addGeometry(Part.ArcOfCircle(Part.Circle(App.Vector(64.3636, -178.6636, 0), App.Vector(0, 0, 1), 2.286), math.radians(-90), math.radians(0)), False)
sketch11.addGeometry(Part.LineSegment(App.Vector(66.6496, -178.6636, 0), App.Vector(66.6496, -153.9748, 0)), False)
sketch11.addConstraint(Sketcher.Constraint("Coincident", 0, 2, 1, 1))
sketch11.addConstraint(Sketcher.Constraint("Tangent", 1, 2, 2, 2))
sketch11.addConstraint(Sketcher.Constraint("Tangent", 2, 1, 3, 1))
sketch11.addConstraint(Sketcher.Constraint("Coincident", 3, 2, 4, 1))
sketch11.addConstraint(Sketcher.Constraint("Coincident", 4, 2, 5, 1))
sketch11.addConstraint(Sketcher.Constraint("Tangent", 5, 2, 6, 1))
sketch11.addConstraint(Sketcher.Constraint("Tangent", 6, 2, 7, 1))
sketch11.addConstraint(Sketcher.Constraint("Coincident", 7, 2, 0, 1))
sketch11.addConstraint(Sketcher.Constraint("Coincident", 8, 2, 9, 1))
sketch11.addConstraint(Sketcher.Constraint("Tangent", 9, 2, 10, 2))
sketch11.addConstraint(Sketcher.Constraint("Tangent", 10, 1, 11, 1))
sketch11.addConstraint(Sketcher.Constraint("Coincident", 11, 2, 12, 1))
sketch11.addConstraint(Sketcher.Constraint("Coincident", 12, 2, 13, 1))
sketch11.addConstraint(Sketcher.Constraint("Tangent", 13, 2, 14, 1))
sketch11.addConstraint(Sketcher.Constraint("Tangent", 14, 2, 15, 1))
sketch11.addConstraint(Sketcher.Constraint("Coincident", 15, 2, 8, 1))
sketch11.addConstraint(Sketcher.Constraint("Vertical", 0))
sketch11.addConstraint(Sketcher.Constraint("Horizontal", 1))
sketch11.addConstraint(Sketcher.Constraint("Vertical", 3))
sketch11.addConstraint(Sketcher.Constraint("Horizontal", 4))
sketch11.addConstraint(Sketcher.Constraint("Vertical", 5))
sketch11.addConstraint(Sketcher.Constraint("Horizontal", 7))
sketch11.addConstraint(Sketcher.Constraint("Horizontal", 8))
sketch11.addConstraint(Sketcher.Constraint("Vertical", 9))
sketch11.addConstraint(Sketcher.Constraint("Horizontal", 11))
sketch11.addConstraint(Sketcher.Constraint("Vertical", 12))
sketch11.addConstraint(Sketcher.Constraint("Horizontal", 13))
sketch11.addConstraint(Sketcher.Constraint("Vertical", 15))
sketch11.addConstraint(Sketcher.Constraint("Coincident", 6, 3, 2, 3))
sketch11.addConstraint(Sketcher.Constraint("Coincident", 14, 3, 10, 3))
sketch11.addConstraint(Sketcher.Constraint("Equal", 2, 10))
sketch11.addConstraint(Sketcher.Constraint("Equal", 6, 14))
sketch11.addConstraint(Sketcher.Constraint("Symmetric", 2, 3, 10, 3, -2))
sketch11.addConstraint(Sketcher.Constraint("Horizontal", 4, 2, 8, 2))
sketch11.addConstraint(Sketcher.Constraint("Equal", 7, 11))
sketch11.addConstraint(Sketcher.Constraint("Equal", 13, 3))
sketch11.addConstraint(Sketcher.Constraint("Radius", 6, Q("0.09 in")))
sketch11.addConstraint(Sketcher.Constraint("Radius", 2, Q("0.278 in")))
sketch11.addConstraint(Sketcher.Constraint("DistanceX", 1, 2, 1, 1, Q("0.972 in")))
sketch11.addConstraint(Sketcher.Constraint("DistanceX", 2, 3, -1, 1, Q("2.534 in")))
sketch11.addConstraint(Sketcher.Constraint("DistanceY", 2, 3, -1, 1, Q("7.034 in")))
pocket8 = body3.newObject("PartDesign::Pocket", "Pocket007")
pocket8.Profile = sketch11
pocket8.Length = Q("1.5 in")
pocket8.Reversed = True

doc.recompute()
